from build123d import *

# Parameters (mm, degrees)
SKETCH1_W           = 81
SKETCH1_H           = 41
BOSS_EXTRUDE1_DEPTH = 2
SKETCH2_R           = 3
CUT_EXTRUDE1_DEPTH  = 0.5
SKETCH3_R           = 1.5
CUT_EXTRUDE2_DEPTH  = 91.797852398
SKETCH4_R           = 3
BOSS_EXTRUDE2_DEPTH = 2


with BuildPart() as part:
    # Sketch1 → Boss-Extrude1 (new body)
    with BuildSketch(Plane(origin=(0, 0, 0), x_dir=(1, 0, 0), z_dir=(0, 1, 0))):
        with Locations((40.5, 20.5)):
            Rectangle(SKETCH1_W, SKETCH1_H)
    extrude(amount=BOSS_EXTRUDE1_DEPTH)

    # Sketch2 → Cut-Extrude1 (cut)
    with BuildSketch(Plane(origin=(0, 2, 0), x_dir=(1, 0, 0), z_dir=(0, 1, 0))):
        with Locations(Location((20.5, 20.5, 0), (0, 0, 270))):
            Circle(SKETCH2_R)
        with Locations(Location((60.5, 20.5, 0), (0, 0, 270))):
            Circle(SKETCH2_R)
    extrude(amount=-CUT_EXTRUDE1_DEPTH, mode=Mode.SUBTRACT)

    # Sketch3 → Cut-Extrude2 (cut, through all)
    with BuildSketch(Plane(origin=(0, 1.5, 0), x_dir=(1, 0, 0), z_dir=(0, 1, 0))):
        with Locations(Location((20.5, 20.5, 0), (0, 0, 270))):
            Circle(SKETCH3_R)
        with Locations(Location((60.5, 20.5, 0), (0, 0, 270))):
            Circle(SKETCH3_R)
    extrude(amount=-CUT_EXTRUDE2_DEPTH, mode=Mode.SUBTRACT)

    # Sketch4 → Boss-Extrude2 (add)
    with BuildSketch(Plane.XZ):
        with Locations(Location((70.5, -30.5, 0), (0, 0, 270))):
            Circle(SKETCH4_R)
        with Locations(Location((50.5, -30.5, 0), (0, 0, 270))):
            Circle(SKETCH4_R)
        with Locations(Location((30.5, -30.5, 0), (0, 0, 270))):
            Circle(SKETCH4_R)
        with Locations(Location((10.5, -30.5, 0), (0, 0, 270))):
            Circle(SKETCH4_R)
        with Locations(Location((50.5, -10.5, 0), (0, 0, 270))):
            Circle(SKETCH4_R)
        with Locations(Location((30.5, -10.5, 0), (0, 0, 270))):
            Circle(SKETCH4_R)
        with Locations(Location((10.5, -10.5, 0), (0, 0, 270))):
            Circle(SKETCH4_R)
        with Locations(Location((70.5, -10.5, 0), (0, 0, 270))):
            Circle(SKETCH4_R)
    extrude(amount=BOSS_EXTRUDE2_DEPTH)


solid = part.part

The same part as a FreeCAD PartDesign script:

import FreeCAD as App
import Part
import Sketcher

V = App.Vector
Q = App.Units.Quantity

doc = App.newDocument("Part")
body = doc.addObject("PartDesign::Body", "Body")

# Sketch on XZ plane
sketch1 = body.newObject("Sketcher::SketchObject", "Sketch")
sketch1.AttachmentSupport = (doc.getObject("XZ_Plane"), [""])
sketch1.MapMode = "FlatFace"
sketch1.addGeometry(Part.LineSegment(V(0, -41, 0), V(0, 0, 0)), False)
sketch1.addGeometry(Part.LineSegment(V(0, 0, 0), V(81, 0, 0)), False)
sketch1.addGeometry(Part.LineSegment(V(81, 0, 0), V(81, -41, 0)), False)
sketch1.addGeometry(Part.LineSegment(V(81, -41, 0), V(0, -41, 0)), False)
sketch1.addConstraint(Sketcher.Constraint("Coincident", 0, 2, 1, 1))
sketch1.addConstraint(Sketcher.Constraint("Coincident", 1, 2, 2, 1))
sketch1.addConstraint(Sketcher.Constraint("Coincident", 2, 2, 3, 1))
sketch1.addConstraint(Sketcher.Constraint("Coincident", 3, 2, 0, 1))
sketch1.addConstraint(Sketcher.Constraint("Vertical", 0))
sketch1.addConstraint(Sketcher.Constraint("Horizontal", 1))
sketch1.addConstraint(Sketcher.Constraint("Vertical", 2))
sketch1.addConstraint(Sketcher.Constraint("Horizontal", 3))
sketch1.addConstraint(Sketcher.Constraint("Coincident", 0, 2, -1, 1))
sketch1.addConstraint(Sketcher.Constraint("DistanceX", 1, 1, 1, 2, Q("81 mm")))
sketch1.addConstraint(Sketcher.Constraint("DistanceY", 0, 1, 0, 2, Q("41 mm")))
pad1 = body.newObject("PartDesign::Pad", "Pad")
pad1.Profile = sketch1
pad1.Length = 2
pad1.Reversed = True

# Sketch on XZ plane
sketch2 = body.newObject("Sketcher::SketchObject", "Sketch001")
sketch2.AttachmentSupport = (doc.getObject("XZ_Plane"), [""])
sketch2.MapMode = "FlatFace"
sketch2.AttachmentOffset = App.Placement(V(0, 0, -2), App.Rotation())
sketch2.addGeometry(Part.Circle(V(20.5, -20.5, 0), V(0, 0, 1), 3), False)
sketch2.addGeometry(Part.Circle(V(60.5, -20.5, 0), V(0, 0, 1), 3), False)
sketch2.addConstraint(Sketcher.Constraint("Equal", 0, 1))
sketch2.addConstraint(Sketcher.Constraint("Horizontal", 0, 3, 1, 3))
sketch2.addConstraint(Sketcher.Constraint("Diameter", 0, Q("6 mm")))
sketch2.addConstraint(Sketcher.Constraint("DistanceX", 0, 3, 1, 3, Q("40 mm")))
sketch2.addConstraint(Sketcher.Constraint("DistanceX", -1, 1, 0, 3, Q("20.5 mm")))
sketch2.addConstraint(Sketcher.Constraint("DistanceY", 0, 3, -1, 1, Q("20.5 mm")))
pocket1 = body.newObject("PartDesign::Pocket", "Pocket")
pocket1.Profile = sketch2
pocket1.Length = 0.5
pocket1.Reversed = True

# Sketch on XZ plane
sketch3 = body.newObject("Sketcher::SketchObject", "Sketch002")
sketch3.AttachmentSupport = (doc.getObject("XZ_Plane"), [""])
sketch3.MapMode = "FlatFace"
sketch3.AttachmentOffset = App.Placement(V(0, 0, -1.5), App.Rotation())
sketch3.addGeometry(Part.Circle(V(20.5, -20.5, 0), V(0, 0, 1), 1.5), False)
sketch3.addGeometry(Part.Circle(V(60.5, -20.5, 0), V(0, 0, 1), 1.5), False)
sketch3.addConstraint(Sketcher.Constraint("Equal", 0, 1))
sketch3.addConstraint(Sketcher.Constraint("Horizontal", 0, 3, 1, 3))
sketch3.addConstraint(Sketcher.Constraint("Diameter", 0, Q("3 mm")))
sketch3.addConstraint(Sketcher.Constraint("DistanceX", 0, 3, 1, 3, Q("40 mm")))
sketch3.addConstraint(Sketcher.Constraint("DistanceX", -1, 1, 0, 3, Q("20.5 mm")))
sketch3.addConstraint(Sketcher.Constraint("DistanceY", 0, 3, -1, 1, Q("20.5 mm")))
pocket2 = body.newObject("PartDesign::Pocket", "Pocket001")
pocket2.Profile = sketch3
pocket2.Type = "ThroughAll"
pocket2.Reversed = True

# Sketch on XZ plane
sketch4 = body.newObject("Sketcher::SketchObject", "Sketch003")
sketch4.AttachmentSupport = (doc.getObject("XZ_Plane"), [""])
sketch4.MapMode = "FlatFace"
sketch4.addGeometry(Part.Circle(V(70.5, -30.5, 0), V(0, 0, 1), 3), False)
sketch4.addGeometry(Part.Circle(V(50.5, -30.5, 0), V(0, 0, 1), 3), False)
sketch4.addGeometry(Part.Circle(V(30.5, -30.5, 0), V(0, 0, 1), 3), False)
sketch4.addGeometry(Part.Circle(V(10.5, -30.5, 0), V(0, 0, 1), 3), False)
sketch4.addGeometry(Part.Circle(V(50.5, -10.5, 0), V(0, 0, 1), 3), False)
sketch4.addGeometry(Part.Circle(V(30.5, -10.5, 0), V(0, 0, 1), 3), False)
sketch4.addGeometry(Part.Circle(V(10.5, -10.5, 0), V(0, 0, 1), 3), False)
sketch4.addGeometry(Part.Circle(V(70.5, -10.5, 0), V(0, 0, 1), 3), False)
sketch4.addConstraint(Sketcher.Constraint("Equal", 0, 1))
sketch4.addConstraint(Sketcher.Constraint("Equal", 1, 2))
sketch4.addConstraint(Sketcher.Constraint("Equal", 2, 3))
sketch4.addConstraint(Sketcher.Constraint("Equal", 3, 4))
sketch4.addConstraint(Sketcher.Constraint("Equal", 4, 5))
sketch4.addConstraint(Sketcher.Constraint("Equal", 5, 6))
sketch4.addConstraint(Sketcher.Constraint("Equal", 6, 7))
sketch4.addConstraint(Sketcher.Constraint("Horizontal", 0, 3, 1, 3))
sketch4.addConstraint(Sketcher.Constraint("Horizontal", 1, 3, 2, 3))
sketch4.addConstraint(Sketcher.Constraint("Horizontal", 2, 3, 3, 3))
sketch4.addConstraint(Sketcher.Constraint("Horizontal", 4, 3, 5, 3))
sketch4.addConstraint(Sketcher.Constraint("Horizontal", 5, 3, 6, 3))
sketch4.addConstraint(Sketcher.Constraint("Horizontal", 6, 3, 7, 3))
sketch4.addConstraint(Sketcher.Constraint("Vertical", 1, 3, 4, 3))
sketch4.addConstraint(Sketcher.Constraint("Vertical", 2, 3, 5, 3))
sketch4.addConstraint(Sketcher.Constraint("Vertical", 3, 3, 6, 3))
sketch4.addConstraint(Sketcher.Constraint("Vertical", 0, 3, 7, 3))
sketch4.addConstraint(Sketcher.Constraint("Diameter", 0, Q("6 mm")))
sketch4.addConstraint(Sketcher.Constraint("DistanceX", 1, 3, 0, 3, Q("20 mm")))
sketch4.addConstraint(Sketcher.Constraint("DistanceX", 2, 3, 1, 3, Q("20 mm")))
sketch4.addConstraint(Sketcher.Constraint("DistanceX", 3, 3, 2, 3, Q("20 mm")))
sketch4.addConstraint(Sketcher.Constraint("DistanceY", 1, 3, 4, 3, Q("20 mm")))
sketch4.addConstraint(Sketcher.Constraint("DistanceX", -1, 1, 0, 3, Q("70.5 mm")))
sketch4.addConstraint(Sketcher.Constraint("DistanceY", 0, 3, -1, 1, Q("30.5 mm")))
pad2 = body.newObject("PartDesign::Pad", "Pad001")
pad2.Profile = sketch4
pad2.Length = 2

doc.recompute()
